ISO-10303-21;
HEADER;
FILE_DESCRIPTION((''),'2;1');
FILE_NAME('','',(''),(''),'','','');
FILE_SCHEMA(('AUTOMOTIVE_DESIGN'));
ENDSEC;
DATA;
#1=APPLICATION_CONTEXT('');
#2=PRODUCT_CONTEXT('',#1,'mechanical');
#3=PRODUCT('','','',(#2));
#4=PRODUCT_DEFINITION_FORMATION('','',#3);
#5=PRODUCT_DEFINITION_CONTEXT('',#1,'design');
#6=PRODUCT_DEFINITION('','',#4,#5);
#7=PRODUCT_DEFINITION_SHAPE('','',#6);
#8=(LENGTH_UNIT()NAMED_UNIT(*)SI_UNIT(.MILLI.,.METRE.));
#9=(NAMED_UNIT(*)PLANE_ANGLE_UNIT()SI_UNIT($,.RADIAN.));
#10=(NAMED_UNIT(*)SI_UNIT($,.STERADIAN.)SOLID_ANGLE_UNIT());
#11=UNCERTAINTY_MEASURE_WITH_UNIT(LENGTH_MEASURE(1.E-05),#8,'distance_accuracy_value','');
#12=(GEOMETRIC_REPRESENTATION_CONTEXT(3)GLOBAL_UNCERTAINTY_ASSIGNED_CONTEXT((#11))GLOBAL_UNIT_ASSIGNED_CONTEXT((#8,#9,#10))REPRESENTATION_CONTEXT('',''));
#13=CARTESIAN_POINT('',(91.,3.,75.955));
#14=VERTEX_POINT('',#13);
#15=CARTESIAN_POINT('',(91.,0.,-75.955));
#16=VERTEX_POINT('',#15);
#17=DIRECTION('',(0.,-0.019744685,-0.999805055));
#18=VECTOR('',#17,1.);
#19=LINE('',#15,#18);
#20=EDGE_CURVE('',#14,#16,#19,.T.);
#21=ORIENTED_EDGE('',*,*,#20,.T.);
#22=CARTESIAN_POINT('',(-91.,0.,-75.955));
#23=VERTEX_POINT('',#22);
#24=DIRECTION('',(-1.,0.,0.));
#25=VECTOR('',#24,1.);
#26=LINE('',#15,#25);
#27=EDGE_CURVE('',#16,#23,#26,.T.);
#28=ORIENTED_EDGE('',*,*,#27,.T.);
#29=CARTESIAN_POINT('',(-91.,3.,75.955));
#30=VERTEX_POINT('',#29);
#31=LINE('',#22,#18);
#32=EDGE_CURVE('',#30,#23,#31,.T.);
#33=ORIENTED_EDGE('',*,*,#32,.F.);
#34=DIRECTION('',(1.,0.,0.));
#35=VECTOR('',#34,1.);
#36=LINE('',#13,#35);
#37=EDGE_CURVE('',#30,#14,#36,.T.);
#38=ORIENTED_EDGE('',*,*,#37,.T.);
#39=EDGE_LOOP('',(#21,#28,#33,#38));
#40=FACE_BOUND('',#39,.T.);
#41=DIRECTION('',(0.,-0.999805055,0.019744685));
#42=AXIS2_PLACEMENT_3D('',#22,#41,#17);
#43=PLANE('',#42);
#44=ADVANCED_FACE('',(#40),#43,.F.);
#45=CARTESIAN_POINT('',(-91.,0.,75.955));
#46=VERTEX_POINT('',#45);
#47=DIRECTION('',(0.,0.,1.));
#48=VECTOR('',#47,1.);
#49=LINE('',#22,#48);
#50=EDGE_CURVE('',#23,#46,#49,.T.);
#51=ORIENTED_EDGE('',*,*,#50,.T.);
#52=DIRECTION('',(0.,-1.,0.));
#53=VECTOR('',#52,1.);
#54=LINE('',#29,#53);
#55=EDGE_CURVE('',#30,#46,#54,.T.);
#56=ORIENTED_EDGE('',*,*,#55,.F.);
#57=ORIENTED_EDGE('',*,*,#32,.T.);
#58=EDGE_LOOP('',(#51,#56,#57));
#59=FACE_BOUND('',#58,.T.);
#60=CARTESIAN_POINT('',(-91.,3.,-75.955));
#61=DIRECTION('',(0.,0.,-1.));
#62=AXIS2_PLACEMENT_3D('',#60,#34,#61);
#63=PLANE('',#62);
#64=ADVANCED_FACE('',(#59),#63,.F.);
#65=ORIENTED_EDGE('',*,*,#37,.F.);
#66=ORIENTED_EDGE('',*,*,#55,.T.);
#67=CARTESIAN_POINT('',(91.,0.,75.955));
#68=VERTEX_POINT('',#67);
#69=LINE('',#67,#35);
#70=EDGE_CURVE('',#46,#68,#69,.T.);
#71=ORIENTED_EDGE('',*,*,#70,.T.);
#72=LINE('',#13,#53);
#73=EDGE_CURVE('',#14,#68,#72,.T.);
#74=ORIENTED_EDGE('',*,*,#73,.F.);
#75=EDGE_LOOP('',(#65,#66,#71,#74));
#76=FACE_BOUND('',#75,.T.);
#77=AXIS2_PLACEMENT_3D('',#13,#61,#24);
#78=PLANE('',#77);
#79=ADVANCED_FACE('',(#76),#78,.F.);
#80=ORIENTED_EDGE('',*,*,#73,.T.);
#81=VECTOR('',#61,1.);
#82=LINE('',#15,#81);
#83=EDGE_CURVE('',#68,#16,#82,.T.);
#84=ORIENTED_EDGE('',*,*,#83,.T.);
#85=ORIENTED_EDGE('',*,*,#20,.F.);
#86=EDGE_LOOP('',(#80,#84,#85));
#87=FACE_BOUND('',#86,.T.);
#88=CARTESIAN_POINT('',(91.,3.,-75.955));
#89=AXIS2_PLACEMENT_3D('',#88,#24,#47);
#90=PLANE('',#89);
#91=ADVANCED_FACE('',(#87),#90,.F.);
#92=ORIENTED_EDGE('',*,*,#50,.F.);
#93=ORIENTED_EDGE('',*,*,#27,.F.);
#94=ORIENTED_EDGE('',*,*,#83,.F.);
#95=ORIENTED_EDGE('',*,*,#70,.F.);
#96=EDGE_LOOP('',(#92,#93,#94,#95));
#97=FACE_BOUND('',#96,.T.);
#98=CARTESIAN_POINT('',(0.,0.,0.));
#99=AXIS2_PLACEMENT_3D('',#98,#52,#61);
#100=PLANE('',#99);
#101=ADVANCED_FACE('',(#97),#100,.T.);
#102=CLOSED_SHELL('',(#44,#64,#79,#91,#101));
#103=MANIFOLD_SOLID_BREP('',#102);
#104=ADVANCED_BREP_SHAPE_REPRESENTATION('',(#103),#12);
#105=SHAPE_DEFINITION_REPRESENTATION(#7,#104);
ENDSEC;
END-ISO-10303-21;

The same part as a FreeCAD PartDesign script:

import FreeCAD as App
import Part
import Sketcher
Q = App.Units.Quantity


def add_polygon(sketch, points):
    """Adds a closed chain of lines whose ends are joined by coincident constraints."""
    first, n = sketch.GeometryCount, len(points)
    for a, b in zip(points, points[1:] + points[:1]):
        sketch.addGeometry(Part.LineSegment(App.Vector(*a, 0), App.Vector(*b, 0)), False)
    for i in range(n):
        sketch.addConstraint(Sketcher.Constraint("Coincident", first + i, 2, first + (i + 1) % n, 1))

doc = App.newDocument("Part")
body = doc.addObject("PartDesign::Body", "Body")

sketch1 = body.newObject("Sketcher::SketchObject", "Sketch")
sketch1.AttachmentSupport = (doc.getObject("XZ_Plane"), [""])
sketch1.MapMode = "FlatFace"
add_polygon(sketch1, [(-91, -75.955), (-91, 75.955), (91, 75.955), (91, -75.955)])
sketch1.addConstraint([
    Sketcher.Constraint("Vertical", 0),
    Sketcher.Constraint("Horizontal", 1),
    Sketcher.Constraint("Vertical", 2),
    Sketcher.Constraint("Horizontal", 3),
    Sketcher.Constraint("Symmetric", 0, 2, 2, 2, -1, 1),
    Sketcher.Constraint("DistanceX", 1, 1, 1, 2, Q("182 mm")),
    Sketcher.Constraint("DistanceY", 0, 1, 0, 2, Q("151.91 mm")),
])
pad1 = body.newObject("PartDesign::Pad", "Pad")
pad1.Profile = sketch1
pad1.Length = 3
pad1.Reversed = True

sketch2 = body.newObject("Sketcher::SketchObject", "Sketch001")
sketch2.AttachmentSupport = (doc.getObject("YZ_Plane"), [""])
sketch2.MapMode = "FlatFace"
sketch2.AttachmentOffset = App.Placement(App.Vector(0, 0, 91), App.Rotation())
add_polygon(sketch2, [(3, -75.955), (3, 75.955), (0, -75.955)])
sketch2.addConstraint([
    Sketcher.Constraint("Vertical", 0),
    Sketcher.Constraint("Horizontal", 2),
    Sketcher.Constraint("PointOnObject", 1, 2, -2),
    Sketcher.Constraint("DistanceX", 2, 1, 2, 2, Q("3 mm")),
    Sketcher.Constraint("DistanceY", 0, 1, 0, 2, Q("151.91 mm")),
    Sketcher.Constraint("DistanceY", -1, 1, 0, 2, Q("75.955 mm")),
])
pocket1 = body.newObject("PartDesign::Pocket", "Pocket")
pocket1.Profile = sketch2
pocket1.Type = "ThroughAll"

doc.recompute()
